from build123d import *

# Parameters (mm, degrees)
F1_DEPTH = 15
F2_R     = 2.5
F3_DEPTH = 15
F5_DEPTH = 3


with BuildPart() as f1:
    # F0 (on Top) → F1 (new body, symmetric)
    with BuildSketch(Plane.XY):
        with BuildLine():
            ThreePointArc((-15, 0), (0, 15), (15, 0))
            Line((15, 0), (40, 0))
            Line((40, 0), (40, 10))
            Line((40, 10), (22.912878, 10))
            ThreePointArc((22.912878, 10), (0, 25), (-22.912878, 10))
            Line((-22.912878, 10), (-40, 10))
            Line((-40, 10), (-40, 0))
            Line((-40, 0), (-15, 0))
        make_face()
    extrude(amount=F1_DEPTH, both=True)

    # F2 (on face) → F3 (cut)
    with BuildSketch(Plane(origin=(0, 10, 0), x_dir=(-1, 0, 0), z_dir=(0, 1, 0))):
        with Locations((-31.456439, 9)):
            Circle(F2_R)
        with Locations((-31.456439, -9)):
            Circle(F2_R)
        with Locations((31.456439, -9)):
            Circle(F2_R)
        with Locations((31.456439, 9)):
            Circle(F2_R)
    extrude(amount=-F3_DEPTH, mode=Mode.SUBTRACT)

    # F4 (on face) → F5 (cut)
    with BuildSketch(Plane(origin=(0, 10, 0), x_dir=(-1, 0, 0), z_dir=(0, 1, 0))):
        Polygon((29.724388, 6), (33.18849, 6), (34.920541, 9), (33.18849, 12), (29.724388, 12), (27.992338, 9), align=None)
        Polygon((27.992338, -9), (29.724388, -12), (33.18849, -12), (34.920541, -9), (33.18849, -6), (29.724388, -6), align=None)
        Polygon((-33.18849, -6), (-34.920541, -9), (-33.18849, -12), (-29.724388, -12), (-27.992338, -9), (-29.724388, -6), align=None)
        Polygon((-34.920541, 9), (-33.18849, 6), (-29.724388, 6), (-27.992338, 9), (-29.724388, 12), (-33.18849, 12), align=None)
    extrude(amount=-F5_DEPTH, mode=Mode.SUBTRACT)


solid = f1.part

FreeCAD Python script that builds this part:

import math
import FreeCAD as App
import Part
import Sketcher

V = App.Vector
Q = App.Units.Quantity

doc = App.newDocument("Part")
body = doc.addObject("PartDesign::Body", "Body")

# Sketch on XY plane
sketch1 = body.newObject("Sketcher::SketchObject", "Sketch")
sketch1.AttachmentSupport = (doc.getObject("XY_Plane"), [""])
sketch1.MapMode = "FlatFace"
sketch1.addGeometry(Part.ArcOfCircle(Part.Circle(V(0, 0, 0), V(0, 0, 1), 15), math.radians(0), math.radians(180)), False)
sketch1.addGeometry(Part.LineSegment(V(15, 0, 0), V(40, 0, 0)), False)
sketch1.addGeometry(Part.LineSegment(V(40, 0, 0), V(40, 10, 0)), False)
sketch1.addGeometry(Part.LineSegment(V(40, 10, 0), V(22.912878, 10, 0)), False)
sketch1.addGeometry(Part.ArcOfCircle(Part.Circle(V(0, 0.000001, 0), V(0, 0, 1), 24.999999), math.radians(23.578177), math.radians(156.421823)), False)
sketch1.addGeometry(Part.LineSegment(V(-22.912878, 10, 0), V(-40, 10, 0)), False)
sketch1.addGeometry(Part.LineSegment(V(-40, 10, 0), V(-40, 0, 0)), False)
sketch1.addGeometry(Part.LineSegment(V(-40, 0, 0), V(-15, 0, 0)), False)
sketch1.addConstraint(Sketcher.Constraint("Coincident", 0, 1, 1, 1))
sketch1.addConstraint(Sketcher.Constraint("Coincident", 1, 2, 2, 1))
sketch1.addConstraint(Sketcher.Constraint("Coincident", 2, 2, 3, 1))
sketch1.addConstraint(Sketcher.Constraint("Coincident", 3, 2, 4, 1))
sketch1.addConstraint(Sketcher.Constraint("Coincident", 4, 2, 5, 1))
sketch1.addConstraint(Sketcher.Constraint("Coincident", 5, 2, 6, 1))
sketch1.addConstraint(Sketcher.Constraint("Coincident", 6, 2, 7, 1))
sketch1.addConstraint(Sketcher.Constraint("Coincident", 7, 2, 0, 2))
sketch1.addConstraint(Sketcher.Constraint("Horizontal", 1))
sketch1.addConstraint(Sketcher.Constraint("Vertical", 2))
sketch1.addConstraint(Sketcher.Constraint("Horizontal", 3))
sketch1.addConstraint(Sketcher.Constraint("Horizontal", 5))
sketch1.addConstraint(Sketcher.Constraint("Vertical", 6))
sketch1.addConstraint(Sketcher.Constraint("Horizontal", 7))
sketch1.addConstraint(Sketcher.Constraint("Coincident", 0, 3, -1, 1))
sketch1.addConstraint(Sketcher.Constraint("Coincident", 4, 3, -1, 1))
sketch1.addConstraint(Sketcher.Constraint("Symmetric", 1, 2, 6, 2, -1, 1))
sketch1.addConstraint(Sketcher.Constraint("PointOnObject", 0, 1, -1))
sketch1.addConstraint(Sketcher.Constraint("Horizontal", 3, 2, 4, 2))
sketch1.addConstraint(Sketcher.Constraint("Radius", 0, Q("15 mm")))
sketch1.addConstraint(Sketcher.Constraint("Radius", 4, Q("24.999999 mm")))
sketch1.addConstraint(Sketcher.Constraint("DistanceX", 1, 1, 1, 2, Q("25 mm")))
sketch1.addConstraint(Sketcher.Constraint("DistanceY", 2, 1, 2, 2, Q("10 mm")))
pad1 = body.newObject("PartDesign::Pad", "Pad")
pad1.Profile = sketch1
pad1.Length = 30
pad1.Midplane = True

# Sketch on XZ plane
sketch2 = body.newObject("Sketcher::SketchObject", "Sketch001")
sketch2.AttachmentSupport = (doc.getObject("XZ_Plane"), [""])
sketch2.MapMode = "FlatFace"
sketch2.AttachmentOffset = App.Placement(V(0, 0, -10), App.Rotation())
sketch2.addGeometry(Part.Circle(V(31.456439, 9, 0), V(0, 0, 1), 2.5), False)
sketch2.addGeometry(Part.Circle(V(31.456439, -9, 0), V(0, 0, 1), 2.5), False)
sketch2.addGeometry(Part.Circle(V(-31.456439, -9, 0), V(0, 0, 1), 2.5), False)
sketch2.addGeometry(Part.Circle(V(-31.456439, 9, 0), V(0, 0, 1), 2.5), False)
sketch2.addConstraint(Sketcher.Constraint("Equal", 0, 1))
sketch2.addConstraint(Sketcher.Constraint("Equal", 1, 2))
sketch2.addConstraint(Sketcher.Constraint("Equal", 2, 3))
sketch2.addConstraint(Sketcher.Constraint("Symmetric", 0, 3, 2, 3, -1, 1))
sketch2.addConstraint(Sketcher.Constraint("Symmetric", 1, 3, 3, 3, -1, 1))
sketch2.addConstraint(Sketcher.Constraint("Symmetric", 1, 3, 2, 3, -2))
sketch2.addConstraint(Sketcher.Constraint("Diameter", 0, Q("5 mm")))
sketch2.addConstraint(Sketcher.Constraint("DistanceY", -1, 1, 0, 3, Q("9 mm")))
sketch2.addConstraint(Sketcher.Constraint("DistanceX", -1, 1, 0, 3, Q("31.456439 mm")))
pocket1 = body.newObject("PartDesign::Pocket", "Pocket")
pocket1.Profile = sketch2
pocket1.Length = 15
pocket1.Reversed = True

# Sketch on XZ plane
sketch3 = body.newObject("Sketcher::SketchObject", "Sketch002")
sketch3.AttachmentSupport = (doc.getObject("XZ_Plane"), [""])
sketch3.MapMode = "FlatFace"
sketch3.AttachmentOffset = App.Placement(V(0, 0, -10), App.Rotation())
sketch3.addGeometry(Part.LineSegment(V(-29.724388, 6, 0), V(-33.18849, 6, 0)), False)
sketch3.addGeometry(Part.LineSegment(V(-33.18849, 6, 0), V(-34.920541, 9, 0)), False)
sketch3.addGeometry(Part.LineSegment(V(-34.920541, 9, 0), V(-33.18849, 12, 0)), False)
sketch3.addGeometry(Part.LineSegment(V(-33.18849, 12, 0), V(-29.724388, 12, 0)), False)
sketch3.addGeometry(Part.LineSegment(V(-29.724388, 12, 0), V(-27.992338, 9, 0)), False)
sketch3.addGeometry(Part.LineSegment(V(-27.992338, 9, 0), V(-29.724388, 6, 0)), False)
sketch3.addGeometry(Part.LineSegment(V(-27.992338, -9, 0), V(-29.724388, -12, 0)), False)
sketch3.addGeometry(Part.LineSegment(V(-29.724388, -12, 0), V(-33.18849, -12, 0)), False)
sketch3.addGeometry(Part.LineSegment(V(-33.18849, -12, 0), V(-34.920541, -9, 0)), False)
sketch3.addGeometry(Part.LineSegment(V(-34.920541, -9, 0), V(-33.18849, -6, 0)), False)
sketch3.addGeometry(Part.LineSegment(V(-33.18849, -6, 0), V(-29.724388, -6, 0)), False)
sketch3.addGeometry(Part.LineSegment(V(-29.724388, -6, 0), V(-27.992338, -9, 0)), False)
sketch3.addGeometry(Part.LineSegment(V(33.18849, -6, 0), V(34.920541, -9, 0)), False)
sketch3.addGeometry(Part.LineSegment(V(34.920541, -9, 0), V(33.18849, -12, 0)), False)
sketch3.addGeometry(Part.LineSegment(V(33.18849, -12, 0), V(29.724388, -12, 0)), False)
sketch3.addGeometry(Part.LineSegment(V(29.724388, -12, 0), V(27.992338, -9, 0)), False)
sketch3.addGeometry(Part.LineSegment(V(27.992338, -9, 0), V(29.724388, -6, 0)), False)
sketch3.addGeometry(Part.LineSegment(V(29.724388, -6, 0), V(33.18849, -6, 0)), False)
sketch3.addGeometry(Part.LineSegment(V(34.920541, 9, 0), V(33.18849, 6, 0)), False)
sketch3.addGeometry(Part.LineSegment(V(33.18849, 6, 0), V(29.724388, 6, 0)), False)
sketch3.addGeometry(Part.LineSegment(V(29.724388, 6, 0), V(27.992338, 9, 0)), False)
sketch3.addGeometry(Part.LineSegment(V(27.992338, 9, 0), V(29.724388, 12, 0)), False)
sketch3.addGeometry(Part.LineSegment(V(29.724388, 12, 0), V(33.18849, 12, 0)), False)
sketch3.addGeometry(Part.LineSegment(V(33.18849, 12, 0), V(34.920541, 9, 0)), False)
sketch3.addConstraint(Sketcher.Constraint("Coincident", 0, 2, 1, 1))
sketch3.addConstraint(Sketcher.Constraint("Coincident", 1, 2, 2, 1))
sketch3.addConstraint(Sketcher.Constraint("Coincident", 2, 2, 3, 1))
sketch3.addConstraint(Sketcher.Constraint("Coincident", 3, 2, 4, 1))
sketch3.addConstraint(Sketcher.Constraint("Coincident", 4, 2, 5, 1))
sketch3.addConstraint(Sketcher.Constraint("Coincident", 5, 2, 0, 1))
sketch3.addConstraint(Sketcher.Constraint("Coincident", 6, 2, 7, 1))
sketch3.addConstraint(Sketcher.Constraint("Coincident", 7, 2, 8, 1))
sketch3.addConstraint(Sketcher.Constraint("Coincident", 8, 2, 9, 1))
sketch3.addConstraint(Sketcher.Constraint("Coincident", 9, 2, 10, 1))
sketch3.addConstraint(Sketcher.Constraint("Coincident", 10, 2, 11, 1))
sketch3.addConstraint(Sketcher.Constraint("Coincident", 11, 2, 6, 1))
sketch3.addConstraint(Sketcher.Constraint("Coincident", 12, 2, 13, 1))
sketch3.addConstraint(Sketcher.Constraint("Coincident", 13, 2, 14, 1))
sketch3.addConstraint(Sketcher.Constraint("Coincident", 14, 2, 15, 1))
sketch3.addConstraint(Sketcher.Constraint("Coincident", 15, 2, 16, 1))
sketch3.addConstraint(Sketcher.Constraint("Coincident", 16, 2, 17, 1))
sketch3.addConstraint(Sketcher.Constraint("Coincident", 17, 2, 12, 1))
sketch3.addConstraint(Sketcher.Constraint("Coincident", 18, 2, 19, 1))
sketch3.addConstraint(Sketcher.Constraint("Coincident", 19, 2, 20, 1))
sketch3.addConstraint(Sketcher.Constraint("Coincident", 20, 2, 21, 1))
sketch3.addConstraint(Sketcher.Constraint("Coincident", 21, 2, 22, 1))
sketch3.addConstraint(Sketcher.Constraint("Coincident", 22, 2, 23, 1))
sketch3.addConstraint(Sketcher.Constraint("Coincident", 23, 2, 18, 1))
sketch3.addConstraint(Sketcher.Constraint("Horizontal", 0))
sketch3.addConstraint(Sketcher.Constraint("Horizontal", 3))
sketch3.addConstraint(Sketcher.Constraint("Horizontal", 7))
sketch3.addConstraint(Sketcher.Constraint("Horizontal", 10))
sketch3.addConstraint(Sketcher.Constraint("Horizontal", 14))
sketch3.addConstraint(Sketcher.Constraint("Horizontal", 17))
sketch3.addConstraint(Sketcher.Constraint("Horizontal", 19))
sketch3.addConstraint(Sketcher.Constraint("Horizontal", 22))
sketch3.addConstraint(Sketcher.Constraint("Symmetric", 1, 2, 12, 2, -1, 1))
sketch3.addConstraint(Sketcher.Constraint("Symmetric", 2, 2, 13, 2, -1, 1))
sketch3.addConstraint(Sketcher.Constraint("Symmetric", 4, 2, 15, 2, -1, 1))
sketch3.addConstraint(Sketcher.Constraint("Symmetric", 5, 2, 16, 2, -1, 1))
sketch3.addConstraint(Sketcher.Constraint("Symmetric", 9, 2, 18, 2, -1, 1))
sketch3.addConstraint(Sketcher.Constraint("Symmetric", 11, 2, 20, 2, -1, 1))
sketch3.addConstraint(Sketcher.Constraint("Symmetric", 6, 2, 21, 2, -1, 1))
sketch3.addConstraint(Sketcher.Constraint("Symmetric", 8, 2, 23, 2, -1, 1))
sketch3.addConstraint(Sketcher.Constraint("Symmetric", 8, 2, 12, 2, -2))
sketch3.addConstraint(Sketcher.Constraint("Symmetric", 7, 2, 13, 2, -2))
sketch3.addConstraint(Sketcher.Constraint("Symmetric", 11, 2, 15, 2, -2))
sketch3.addConstraint(Sketcher.Constraint("Symmetric", 10, 2, 16, 2, -2))
sketch3.addConstraint(Sketcher.Constraint("Parallel", 1, 4))
sketch3.addConstraint(Sketcher.Constraint("Parallel", 2, 5))
sketch3.addConstraint(Sketcher.Constraint("Parallel", 5, 6))
sketch3.addConstraint(Sketcher.Constraint("Parallel", 4, 8))
sketch3.addConstraint(Sketcher.Constraint("Parallel", 6, 9))
sketch3.addConstraint(Sketcher.Constraint("Parallel", 11, 12))
sketch3.addConstraint(Sketcher.Constraint("Parallel", 12, 15))
sketch3.addConstraint(Sketcher.Constraint("Parallel", 15, 20))
sketch3.addConstraint(Sketcher.Constraint("Parallel", 20, 23))
sketch3.addConstraint(Sketcher.Constraint("Horizontal", 1, 2, 4, 2))
sketch3.addConstraint(Sketcher.Constraint("Vertical", 0, 2, 2, 2))
sketch3.addConstraint(Sketcher.Constraint("Angle", 1, Q("120.000003 deg")))
sketch3.addConstraint(Sketcher.Constraint("DistanceY", -1, 1, 0, 2, Q("6 mm")))
sketch3.addConstraint(Sketcher.Constraint("DistanceY", -1, 1, 1, 2, Q("9 mm")))
sketch3.addConstraint(Sketcher.Constraint("DistanceX", 0, 2, 0, 1, Q("3.464102 mm")))
sketch3.addConstraint(Sketcher.Constraint("DistanceX", 0, 2, -1, 1, Q("33.18849 mm")))
pocket2 = body.newObject("PartDesign::Pocket", "Pocket001")
pocket2.Profile = sketch3
pocket2.Length = 3
pocket2.Reversed = True

doc.recompute()
